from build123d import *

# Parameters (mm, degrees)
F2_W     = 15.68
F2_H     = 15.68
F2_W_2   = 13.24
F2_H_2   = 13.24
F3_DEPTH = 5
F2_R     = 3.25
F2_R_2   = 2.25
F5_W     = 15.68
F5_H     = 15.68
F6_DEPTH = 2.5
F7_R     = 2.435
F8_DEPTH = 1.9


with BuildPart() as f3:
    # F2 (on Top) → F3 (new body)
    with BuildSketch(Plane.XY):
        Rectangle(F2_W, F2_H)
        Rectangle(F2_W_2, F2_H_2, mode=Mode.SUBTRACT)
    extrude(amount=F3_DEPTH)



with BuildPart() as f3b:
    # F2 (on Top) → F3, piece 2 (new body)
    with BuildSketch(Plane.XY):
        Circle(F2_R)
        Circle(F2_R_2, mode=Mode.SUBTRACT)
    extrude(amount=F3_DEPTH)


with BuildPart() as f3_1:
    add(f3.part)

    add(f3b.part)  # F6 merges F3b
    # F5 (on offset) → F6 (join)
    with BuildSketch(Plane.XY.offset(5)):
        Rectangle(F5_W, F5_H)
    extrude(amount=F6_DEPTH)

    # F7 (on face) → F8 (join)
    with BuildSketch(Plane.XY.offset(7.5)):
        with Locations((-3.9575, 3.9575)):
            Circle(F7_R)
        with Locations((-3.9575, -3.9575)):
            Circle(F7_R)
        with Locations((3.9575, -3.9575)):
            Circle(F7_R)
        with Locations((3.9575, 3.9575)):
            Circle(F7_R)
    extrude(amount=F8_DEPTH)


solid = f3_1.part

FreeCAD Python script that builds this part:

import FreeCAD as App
import Part
import Sketcher
Q = App.Units.Quantity


def add_polygon(sketch, points):
    """Adds a closed chain of lines whose ends are joined by coincident constraints."""
    first, n = sketch.GeometryCount, len(points)
    for a, b in zip(points, points[1:] + points[:1]):
        sketch.addGeometry(Part.LineSegment(App.Vector(*a, 0), App.Vector(*b, 0)), False)
    for i in range(n):
        sketch.addConstraint(Sketcher.Constraint("Coincident", first + i, 2, first + (i + 1) % n, 1))

doc = App.newDocument("Part")
body = doc.addObject("PartDesign::Body", "Body")

sketch1 = body.newObject("Sketcher::SketchObject", "Sketch")
sketch1.AttachmentSupport = (doc.getObject("XY_Plane"), [""])
sketch1.MapMode = "FlatFace"
add_polygon(sketch1, [(-7.84, 7.84), (-7.84, -7.84), (7.84, -7.84), (7.84, 7.84)])
add_polygon(sketch1, [(6.62, -6.62), (-6.62, -6.62), (-6.62, 6.62), (6.62, 6.62)])
sketch1.addConstraint([
    Sketcher.Constraint("Vertical", 0),
    Sketcher.Constraint("Horizontal", 1),
    Sketcher.Constraint("Vertical", 2),
    Sketcher.Constraint("Horizontal", 3),
    Sketcher.Constraint("Horizontal", 4),
    Sketcher.Constraint("Vertical", 5),
    Sketcher.Constraint("Horizontal", 6),
    Sketcher.Constraint("Vertical", 7),
    Sketcher.Constraint("Symmetric", 0, 2, 2, 2, -1, 1),
    Sketcher.Constraint("Symmetric", 4, 2, 6, 2, -1, 1),
    Sketcher.Constraint("Equal", 3, 0),
    Sketcher.Constraint("Equal", 6, 5),
    Sketcher.Constraint("DistanceX", 1, 1, 1, 2, Q("15.68 mm")),
    Sketcher.Constraint("DistanceX", 4, 2, 4, 1, Q("13.24 mm")),
])
pad1 = body.newObject("PartDesign::Pad", "Pad")
pad1.Profile = sketch1
pad1.Length = 5
body2 = doc.addObject("PartDesign::Body", "Body001")

sketch2 = body2.newObject("Sketcher::SketchObject", "Sketch001")
sketch2.AttachmentSupport = (doc.getObject("XY_Plane001"), [""])
sketch2.MapMode = "FlatFace"
sketch2.addGeometry([
    Part.Circle(App.Vector(0, 0, 0), App.Vector(0, 0, 1), 3.25),
    Part.Circle(App.Vector(0, 0, 0), App.Vector(0, 0, 1), 2.25),
], False)
sketch2.addConstraint([
    Sketcher.Constraint("Coincident", 0, 3, -1, 1),
    Sketcher.Constraint("Coincident", 1, 3, -1, 1),
    Sketcher.Constraint("Diameter", 0, Q("6.5 mm")),
    Sketcher.Constraint("Diameter", 1, Q("4.5 mm")),
])
pad2 = body2.newObject("PartDesign::Pad", "Pad001")
pad2.Profile = sketch2
pad2.Length = 5
body.AllowCompound = True
doc.recompute()

boolean = body.newObject("PartDesign::Boolean", "Boolean")
boolean.Type = "Fuse"
boolean.addObjects([body2])

sketch3 = body.newObject("Sketcher::SketchObject", "Sketch002")
sketch3.AttachmentSupport = (doc.getObject("XY_Plane"), [""])
sketch3.MapMode = "FlatFace"
sketch3.AttachmentOffset = App.Placement(App.Vector(0, 0, 5), App.Rotation())
add_polygon(sketch3, [(-7.84, 7.84), (-7.84, -7.84), (7.84, -7.84), (7.84, 7.84)])
sketch3.addConstraint([
    Sketcher.Constraint("Vertical", 0),
    Sketcher.Constraint("Horizontal", 1),
    Sketcher.Constraint("Vertical", 2),
    Sketcher.Constraint("Horizontal", 3),
    Sketcher.Constraint("Symmetric", 0, 2, 2, 2, -1, 1),
    Sketcher.Constraint("Equal", 3, 0),
    Sketcher.Constraint("DistanceX", 1, 1, 1, 2, Q("15.68 mm")),
])
pad3 = body.newObject("PartDesign::Pad", "Pad002")
pad3.Profile = sketch3
pad3.Length = 2.5

sketch4 = body.newObject("Sketcher::SketchObject", "Sketch003")
sketch4.AttachmentSupport = (doc.getObject("XY_Plane"), [""])
sketch4.MapMode = "FlatFace"
sketch4.AttachmentOffset = App.Placement(App.Vector(0, 0, 7.5), App.Rotation())
sketch4.addGeometry([
    Part.Circle(App.Vector(-3.9575, 3.9575, 0), App.Vector(0, 0, 1), 2.435),
    Part.Circle(App.Vector(-3.9575, -3.9575, 0), App.Vector(0, 0, 1), 2.435),
    Part.Circle(App.Vector(3.9575, -3.9575, 0), App.Vector(0, 0, 1), 2.435),
    Part.Circle(App.Vector(3.9575, 3.9575, 0), App.Vector(0, 0, 1), 2.435),
], False)
sketch4.addConstraint([
    Sketcher.Constraint("Equal", 0, 1),
    Sketcher.Constraint("Equal", 1, 2),
    Sketcher.Constraint("Equal", 2, 3),
    Sketcher.Constraint("Symmetric", 0, 3, 2, 3, -1, 1),
    Sketcher.Constraint("Symmetric", 1, 3, 3, 3, -1, 1),
    Sketcher.Constraint("Symmetric", 1, 3, 2, 3, -2),
    Sketcher.Constraint("Diameter", 0, Q("4.87 mm")),
    Sketcher.Constraint("DistanceY", 1, 3, 0, 3, Q("7.915 mm")),
    Sketcher.Constraint("DistanceX", 1, 3, 2, 3, Q("7.915 mm")),
])
pad4 = body.newObject("PartDesign::Pad", "Pad003")
pad4.Profile = sketch4
pad4.Length = 1.9

doc.recompute()
